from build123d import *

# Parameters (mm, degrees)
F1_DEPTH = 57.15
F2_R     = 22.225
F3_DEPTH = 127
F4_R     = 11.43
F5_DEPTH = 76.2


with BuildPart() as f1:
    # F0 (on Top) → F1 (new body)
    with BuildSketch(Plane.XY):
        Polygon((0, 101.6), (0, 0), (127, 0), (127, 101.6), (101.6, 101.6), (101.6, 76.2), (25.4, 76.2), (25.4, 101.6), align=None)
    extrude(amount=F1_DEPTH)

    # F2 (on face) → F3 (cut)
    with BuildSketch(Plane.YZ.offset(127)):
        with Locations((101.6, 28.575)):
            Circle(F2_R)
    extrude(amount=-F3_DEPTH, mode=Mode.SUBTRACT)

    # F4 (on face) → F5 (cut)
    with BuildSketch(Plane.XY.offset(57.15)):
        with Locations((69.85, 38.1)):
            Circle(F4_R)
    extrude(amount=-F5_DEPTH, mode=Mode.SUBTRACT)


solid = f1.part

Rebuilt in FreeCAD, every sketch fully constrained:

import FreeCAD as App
import Part
import Sketcher

V = App.Vector
Q = App.Units.Quantity

doc = App.newDocument("Part")
params = doc.addObject("Spreadsheet::Sheet", "Params")
for row, (alias, value) in enumerate([
    ("sketch1_width", "5 in"),
    ("sketch1_width2", "1 in"),
    ("sketch1_height", "4 in"),
    ("pad1_length", "2.25 in"),
    ("sketch2_diameter", "1.75 in"),
    ("pocket1_length", "5 in"),
    ("sketch3_diameter", "0.9 in"),
    ("pocket2_length", "3 in"),
], start=1):
    params.set(f"A{row}", alias)
    params.set(f"B{row}", "=" + value)
    params.setAlias(f"B{row}", alias)

body = doc.addObject("PartDesign::Body", "Body")

# Sketch on XY plane
sketch1 = doc.addObject("Sketcher::SketchObject", "Sketch")
body.addObject(sketch1)
sketch1.AttachmentSupport = (doc.XY_Plane, [""])
sketch1.MapMode = "FlatFace"
sketch1.addGeometry(Part.LineSegment(V(0, 102, 0), V(0, 0, 0)), False)
sketch1.addGeometry(Part.LineSegment(V(0, 0, 0), V(127, 0, 0)), False)
sketch1.addGeometry(Part.LineSegment(V(127, 0, 0), V(127, 102, 0)), False)
sketch1.addGeometry(Part.LineSegment(V(127, 102, 0), V(102, 102, 0)), False)
sketch1.addGeometry(Part.LineSegment(V(102, 102, 0), V(102, 76, 0)), False)
sketch1.addGeometry(Part.LineSegment(V(102, 76, 0), V(25, 76, 0)), False)
sketch1.addGeometry(Part.LineSegment(V(25, 76, 0), V(25, 102, 0)), False)
sketch1.addGeometry(Part.LineSegment(V(25, 102, 0), V(0, 102, 0)), False)
sketch1.addConstraint(Sketcher.Constraint("Coincident", 0, 2, 1, 1))
sketch1.addConstraint(Sketcher.Constraint("Coincident", 1, 2, 2, 1))
sketch1.addConstraint(Sketcher.Constraint("Coincident", 2, 2, 3, 1))
sketch1.addConstraint(Sketcher.Constraint("Coincident", 3, 2, 4, 1))
sketch1.addConstraint(Sketcher.Constraint("Coincident", 4, 2, 5, 1))
sketch1.addConstraint(Sketcher.Constraint("Coincident", 5, 2, 6, 1))
sketch1.addConstraint(Sketcher.Constraint("Coincident", 6, 2, 7, 1))
sketch1.addConstraint(Sketcher.Constraint("Coincident", 7, 2, 0, 1))
sketch1.addConstraint(Sketcher.Constraint("Vertical", 0))
sketch1.addConstraint(Sketcher.Constraint("Horizontal", 1))
sketch1.addConstraint(Sketcher.Constraint("Vertical", 2))
sketch1.addConstraint(Sketcher.Constraint("Horizontal", 3))
sketch1.addConstraint(Sketcher.Constraint("Vertical", 4))
sketch1.addConstraint(Sketcher.Constraint("Horizontal", 5))
sketch1.addConstraint(Sketcher.Constraint("Vertical", 6))
sketch1.addConstraint(Sketcher.Constraint("Horizontal", 7))
sketch1.addConstraint(Sketcher.Constraint("Coincident", 0, 2, -1, 1))
sketch1.addConstraint(Sketcher.Constraint("Horizontal", 3, 2, 6, 2))
sketch1.addConstraint(Sketcher.Constraint("Equal", 3, 7))
sketch1.addConstraint(Sketcher.Constraint("Equal", 7, 4))
sketch1.addConstraint(Sketcher.Constraint("DistanceX", 1, 1, 1, 2, Q("5 in")))
sketch1.addConstraint(Sketcher.Constraint("DistanceX", 3, 2, 3, 1, Q("1 in")))
sketch1.addConstraint(Sketcher.Constraint("DistanceY", 0, 2, 0, 1, Q("4 in")))
sketch1.setExpression("Constraints[20]", "Params.sketch1_width")
sketch1.setExpression("Constraints[21]", "Params.sketch1_width2")
sketch1.setExpression("Constraints[22]", "Params.sketch1_height")
pad1 = doc.addObject("PartDesign::Pad", "Pad")
body.addObject(pad1)
pad1.Profile = sketch1
pad1.setExpression("Length", "Params.pad1_length")

# Sketch on YZ plane
sketch2 = doc.addObject("Sketcher::SketchObject", "Sketch001")
body.addObject(sketch2)
sketch2.AttachmentSupport = (doc.YZ_Plane, [""])
sketch2.MapMode = "FlatFace"
sketch2.AttachmentOffset = App.Placement(V(0, 0, 5 * 25.4), App.Rotation())
sketch2.addGeometry(Part.Circle(V(102, 29, 0), V(0, 0, 1), 22), False)
sketch2.addConstraint(Sketcher.Constraint("Diameter", 0, Q("1.75 in")))
sketch2.addConstraint(Sketcher.Constraint("DistanceX", -1, 1, 0, 3, Q("4 in")))
sketch2.addConstraint(Sketcher.Constraint("DistanceY", -1, 1, 0, 3, Q("1.125 in")))
sketch2.setExpression("Constraints[0]", "Params.sketch2_diameter")
pocket1 = doc.addObject("PartDesign::Pocket", "Pocket")
body.addObject(pocket1)
pocket1.Profile = sketch2
pocket1.setExpression("Length", "Params.pocket1_length")

# Sketch on XY plane
sketch3 = doc.addObject("Sketcher::SketchObject", "Sketch002")
body.addObject(sketch3)
sketch3.AttachmentSupport = (doc.XY_Plane, [""])
sketch3.MapMode = "FlatFace"
sketch3.AttachmentOffset = App.Placement(V(0, 0, 2.25 * 25.4), App.Rotation())
sketch3.addGeometry(Part.Circle(V(70, 38, 0), V(0, 0, 1), 11), False)
sketch3.addConstraint(Sketcher.Constraint("Diameter", 0, Q("0.9 in")))
sketch3.addConstraint(Sketcher.Constraint("DistanceY", -1, 1, 0, 3, Q("1.5 in")))
sketch3.addConstraint(Sketcher.Constraint("DistanceX", -1, 1, 0, 3, Q("2.75 in")))
sketch3.setExpression("Constraints[0]", "Params.sketch3_diameter")
pocket2 = doc.addObject("PartDesign::Pocket", "Pocket001")
body.addObject(pocket2)
pocket2.Profile = sketch3
pocket2.setExpression("Length", "Params.pocket2_length")

doc.recompute()
